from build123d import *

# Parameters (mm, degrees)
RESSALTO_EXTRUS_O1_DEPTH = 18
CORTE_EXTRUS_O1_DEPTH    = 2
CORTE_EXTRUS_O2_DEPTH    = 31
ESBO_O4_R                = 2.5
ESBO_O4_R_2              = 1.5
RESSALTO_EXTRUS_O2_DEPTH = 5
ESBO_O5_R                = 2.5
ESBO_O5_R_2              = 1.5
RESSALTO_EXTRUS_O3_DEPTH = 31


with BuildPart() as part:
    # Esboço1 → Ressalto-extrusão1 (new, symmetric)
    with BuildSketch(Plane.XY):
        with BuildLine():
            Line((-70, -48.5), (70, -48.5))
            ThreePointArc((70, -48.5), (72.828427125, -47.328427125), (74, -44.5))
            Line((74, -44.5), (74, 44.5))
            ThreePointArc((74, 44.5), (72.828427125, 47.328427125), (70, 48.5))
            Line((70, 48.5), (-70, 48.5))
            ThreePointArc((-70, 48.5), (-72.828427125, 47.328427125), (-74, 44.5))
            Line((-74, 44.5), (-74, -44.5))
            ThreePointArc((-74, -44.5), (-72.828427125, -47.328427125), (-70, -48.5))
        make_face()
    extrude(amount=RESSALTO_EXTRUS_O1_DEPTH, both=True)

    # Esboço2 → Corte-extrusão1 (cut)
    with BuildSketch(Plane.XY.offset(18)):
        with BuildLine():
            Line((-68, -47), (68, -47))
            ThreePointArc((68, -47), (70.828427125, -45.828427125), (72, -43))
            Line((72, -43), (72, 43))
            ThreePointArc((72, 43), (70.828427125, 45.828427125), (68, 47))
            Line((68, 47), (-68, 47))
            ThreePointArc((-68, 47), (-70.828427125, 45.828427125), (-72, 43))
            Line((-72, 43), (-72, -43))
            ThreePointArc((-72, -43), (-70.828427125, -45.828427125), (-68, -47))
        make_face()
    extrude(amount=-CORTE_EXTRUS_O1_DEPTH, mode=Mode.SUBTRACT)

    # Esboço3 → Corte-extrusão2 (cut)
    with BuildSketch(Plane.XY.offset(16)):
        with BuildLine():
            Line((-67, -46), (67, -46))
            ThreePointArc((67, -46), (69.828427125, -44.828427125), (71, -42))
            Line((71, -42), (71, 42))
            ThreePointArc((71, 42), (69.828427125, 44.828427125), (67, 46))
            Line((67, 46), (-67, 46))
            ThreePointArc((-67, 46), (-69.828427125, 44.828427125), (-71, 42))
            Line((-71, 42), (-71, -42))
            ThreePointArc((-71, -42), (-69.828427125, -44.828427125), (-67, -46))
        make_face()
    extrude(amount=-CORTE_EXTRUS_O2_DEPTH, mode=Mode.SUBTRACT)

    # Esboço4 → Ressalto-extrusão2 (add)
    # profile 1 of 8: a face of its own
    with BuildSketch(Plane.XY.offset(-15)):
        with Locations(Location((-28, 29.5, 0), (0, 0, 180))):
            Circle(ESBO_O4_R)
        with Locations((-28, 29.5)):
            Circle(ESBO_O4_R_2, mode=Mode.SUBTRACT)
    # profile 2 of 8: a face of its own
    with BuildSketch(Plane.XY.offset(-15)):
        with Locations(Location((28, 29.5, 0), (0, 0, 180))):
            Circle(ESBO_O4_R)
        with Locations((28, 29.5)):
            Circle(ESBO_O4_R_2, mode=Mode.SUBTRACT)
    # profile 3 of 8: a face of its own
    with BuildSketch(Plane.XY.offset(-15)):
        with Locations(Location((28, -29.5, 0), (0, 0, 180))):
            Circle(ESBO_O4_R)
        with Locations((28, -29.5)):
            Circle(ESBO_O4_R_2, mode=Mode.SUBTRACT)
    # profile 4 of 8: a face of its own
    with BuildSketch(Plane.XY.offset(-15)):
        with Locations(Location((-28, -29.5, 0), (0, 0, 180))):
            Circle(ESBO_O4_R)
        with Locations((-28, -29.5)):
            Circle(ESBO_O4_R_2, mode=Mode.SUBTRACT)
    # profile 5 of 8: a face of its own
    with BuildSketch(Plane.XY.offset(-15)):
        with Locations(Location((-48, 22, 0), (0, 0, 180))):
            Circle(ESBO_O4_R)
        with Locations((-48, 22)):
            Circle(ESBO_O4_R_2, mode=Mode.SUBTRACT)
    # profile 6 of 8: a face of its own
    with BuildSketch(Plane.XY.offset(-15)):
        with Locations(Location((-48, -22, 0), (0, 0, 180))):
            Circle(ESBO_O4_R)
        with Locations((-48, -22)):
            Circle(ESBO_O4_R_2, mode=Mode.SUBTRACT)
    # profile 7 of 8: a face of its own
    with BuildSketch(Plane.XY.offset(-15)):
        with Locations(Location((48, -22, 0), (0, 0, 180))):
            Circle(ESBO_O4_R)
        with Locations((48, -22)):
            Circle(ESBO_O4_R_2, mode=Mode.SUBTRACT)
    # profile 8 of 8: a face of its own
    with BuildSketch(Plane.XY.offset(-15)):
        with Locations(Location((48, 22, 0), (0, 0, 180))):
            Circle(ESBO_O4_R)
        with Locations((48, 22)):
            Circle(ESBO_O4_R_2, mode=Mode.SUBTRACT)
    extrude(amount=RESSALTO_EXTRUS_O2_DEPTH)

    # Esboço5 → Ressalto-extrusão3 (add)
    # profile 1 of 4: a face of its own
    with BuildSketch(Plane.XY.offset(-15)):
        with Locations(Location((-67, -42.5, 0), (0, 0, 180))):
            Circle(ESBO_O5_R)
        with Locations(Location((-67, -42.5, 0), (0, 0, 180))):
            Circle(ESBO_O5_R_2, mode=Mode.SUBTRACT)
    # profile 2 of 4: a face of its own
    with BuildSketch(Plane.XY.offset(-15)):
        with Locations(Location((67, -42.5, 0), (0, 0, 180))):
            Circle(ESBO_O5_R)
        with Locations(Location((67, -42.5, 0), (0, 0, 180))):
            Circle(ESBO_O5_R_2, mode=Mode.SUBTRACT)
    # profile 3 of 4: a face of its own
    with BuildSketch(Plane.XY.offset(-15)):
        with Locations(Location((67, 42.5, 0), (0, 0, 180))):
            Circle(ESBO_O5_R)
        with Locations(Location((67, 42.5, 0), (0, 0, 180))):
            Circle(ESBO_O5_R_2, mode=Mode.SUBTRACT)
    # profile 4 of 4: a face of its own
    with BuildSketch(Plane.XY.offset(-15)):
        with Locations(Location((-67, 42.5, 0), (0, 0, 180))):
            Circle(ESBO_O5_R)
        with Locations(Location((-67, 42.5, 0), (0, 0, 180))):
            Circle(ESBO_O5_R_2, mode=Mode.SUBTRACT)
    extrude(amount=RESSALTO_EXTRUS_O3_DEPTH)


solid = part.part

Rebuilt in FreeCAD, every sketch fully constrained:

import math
import FreeCAD as App
import Part
import Sketcher

V = App.Vector

doc = App.newDocument("Part")
body = doc.addObject("PartDesign::Body", "Body")

sketch1 = body.newObject("Sketcher::SketchObject", "Sketch")
sketch1.AttachmentSupport = (doc.getObject("XY_Plane"), [""])
sketch1.MapMode = "FlatFace"
sketch1.addGeometry(Part.LineSegment(V(-70, -48.5, 0), V(70, -48.5, 0)), False)
sketch1.addGeometry(Part.ArcOfCircle(Part.Circle(V(70, -44.5, 0), V(0, 0, 1), 4), math.radians(-90), math.radians(0)), False)
sketch1.addGeometry(Part.LineSegment(V(74, -44.5, 0), V(74, 44.5, 0)), False)
sketch1.addGeometry(Part.ArcOfCircle(Part.Circle(V(70, 44.5, 0), V(0, 0, 1), 4), math.radians(0), math.radians(90)), False)
sketch1.addGeometry(Part.LineSegment(V(70, 48.5, 0), V(-70, 48.5, 0)), False)
sketch1.addGeometry(Part.ArcOfCircle(Part.Circle(V(-70, 44.5, 0), V(0, 0, 1), 4), math.radians(90), math.radians(180)), False)
sketch1.addGeometry(Part.LineSegment(V(-74, 44.5, 0), V(-74, -44.5, 0)), False)
sketch1.addGeometry(Part.ArcOfCircle(Part.Circle(V(-70, -44.5, 0), V(0, 0, 1), 4), math.radians(180), math.radians(270)), False)
sketch1.addConstraint(Sketcher.Constraint("Tangent", 0, 2, 1, 1))
sketch1.addConstraint(Sketcher.Constraint("Tangent", 1, 2, 2, 1))
sketch1.addConstraint(Sketcher.Constraint("Tangent", 2, 2, 3, 1))
sketch1.addConstraint(Sketcher.Constraint("Tangent", 3, 2, 4, 1))
sketch1.addConstraint(Sketcher.Constraint("Tangent", 4, 2, 5, 1))
sketch1.addConstraint(Sketcher.Constraint("Tangent", 5, 2, 6, 1))
sketch1.addConstraint(Sketcher.Constraint("Tangent", 6, 2, 7, 1))
sketch1.addConstraint(Sketcher.Constraint("Tangent", 7, 2, 0, 1))
sketch1.addConstraint(Sketcher.Constraint("Horizontal", 0))
sketch1.addConstraint(Sketcher.Constraint("Vertical", 2))
sketch1.addConstraint(Sketcher.Constraint("Horizontal", 4))
sketch1.addConstraint(Sketcher.Constraint("Vertical", 6))
sketch1.addConstraint(Sketcher.Constraint("Equal", 1, 3))
sketch1.addConstraint(Sketcher.Constraint("Equal", 3, 5))
sketch1.addConstraint(Sketcher.Constraint("Equal", 5, 7))
sketch1.addConstraint(Sketcher.Constraint("Symmetric", 1, 3, 5, 3, -1, 1))
sketch1.addConstraint(Sketcher.Constraint("Radius", 1, 4.0))
sketch1.addConstraint(Sketcher.Constraint("DistanceX", 0, 1, 0, 2, 140.0))
sketch1.addConstraint(Sketcher.Constraint("DistanceY", 2, 1, 2, 2, 89.0))
pad1 = body.newObject("PartDesign::Pad", "Pad")
pad1.Profile = sketch1
pad1.Length = 36
pad1.Midplane = True

sketch2 = body.newObject("Sketcher::SketchObject", "Sketch001")
sketch2.AttachmentSupport = (doc.getObject("XY_Plane"), [""])
sketch2.MapMode = "FlatFace"
sketch2.AttachmentOffset = App.Placement(V(0, 0, 18), App.Rotation())
sketch2.addGeometry(Part.LineSegment(V(-68, -47, 0), V(68, -47, 0)), False)
sketch2.addGeometry(Part.ArcOfCircle(Part.Circle(V(68, -43, 0), V(0, 0, 1), 4), math.radians(-90), math.radians(0)), False)
sketch2.addGeometry(Part.LineSegment(V(72, -43, 0), V(72, 43, 0)), False)
sketch2.addGeometry(Part.ArcOfCircle(Part.Circle(V(68, 43, 0), V(0, 0, 1), 4), math.radians(0), math.radians(90)), False)
sketch2.addGeometry(Part.LineSegment(V(68, 47, 0), V(-68, 47, 0)), False)
sketch2.addGeometry(Part.ArcOfCircle(Part.Circle(V(-68, 43, 0), V(0, 0, 1), 4), math.radians(90), math.radians(180)), False)
sketch2.addGeometry(Part.LineSegment(V(-72, 43, 0), V(-72, -43, 0)), False)
sketch2.addGeometry(Part.ArcOfCircle(Part.Circle(V(-68, -43, 0), V(0, 0, 1), 4), math.radians(180), math.radians(270)), False)
sketch2.addConstraint(Sketcher.Constraint("Tangent", 0, 2, 1, 1))
sketch2.addConstraint(Sketcher.Constraint("Tangent", 1, 2, 2, 1))
sketch2.addConstraint(Sketcher.Constraint("Tangent", 2, 2, 3, 1))
sketch2.addConstraint(Sketcher.Constraint("Tangent", 3, 2, 4, 1))
sketch2.addConstraint(Sketcher.Constraint("Tangent", 4, 2, 5, 1))
sketch2.addConstraint(Sketcher.Constraint("Tangent", 5, 2, 6, 1))
sketch2.addConstraint(Sketcher.Constraint("Tangent", 6, 2, 7, 1))
sketch2.addConstraint(Sketcher.Constraint("Tangent", 7, 2, 0, 1))
sketch2.addConstraint(Sketcher.Constraint("Horizontal", 0))
sketch2.addConstraint(Sketcher.Constraint("Vertical", 2))
sketch2.addConstraint(Sketcher.Constraint("Horizontal", 4))
sketch2.addConstraint(Sketcher.Constraint("Vertical", 6))
sketch2.addConstraint(Sketcher.Constraint("Equal", 1, 3))
sketch2.addConstraint(Sketcher.Constraint("Equal", 3, 5))
sketch2.addConstraint(Sketcher.Constraint("Equal", 5, 7))
sketch2.addConstraint(Sketcher.Constraint("Symmetric", 1, 3, 5, 3, -1, 1))
sketch2.addConstraint(Sketcher.Constraint("Radius", 1, 4.0))
sketch2.addConstraint(Sketcher.Constraint("DistanceX", 0, 1, 0, 2, 136.0))
sketch2.addConstraint(Sketcher.Constraint("DistanceY", 2, 1, 2, 2, 86.0))
pocket1 = body.newObject("PartDesign::Pocket", "Pocket")
pocket1.Profile = sketch2
pocket1.Length = 2

sketch3 = body.newObject("Sketcher::SketchObject", "Sketch002")
sketch3.AttachmentSupport = (doc.getObject("XY_Plane"), [""])
sketch3.MapMode = "FlatFace"
sketch3.AttachmentOffset = App.Placement(V(0, 0, 16), App.Rotation())
sketch3.addGeometry(Part.LineSegment(V(-67, -46, 0), V(67, -46, 0)), False)
sketch3.addGeometry(Part.ArcOfCircle(Part.Circle(V(67, -42, 0), V(0, 0, 1), 4), math.radians(-90), math.radians(0)), False)
sketch3.addGeometry(Part.LineSegment(V(71, -42, 0), V(71, 42, 0)), False)
sketch3.addGeometry(Part.ArcOfCircle(Part.Circle(V(67, 42, 0), V(0, 0, 1), 4), math.radians(0), math.radians(90)), False)
sketch3.addGeometry(Part.LineSegment(V(67, 46, 0), V(-67, 46, 0)), False)
sketch3.addGeometry(Part.ArcOfCircle(Part.Circle(V(-67, 42, 0), V(0, 0, 1), 4), math.radians(90), math.radians(180)), False)
sketch3.addGeometry(Part.LineSegment(V(-71, 42, 0), V(-71, -42, 0)), False)
sketch3.addGeometry(Part.ArcOfCircle(Part.Circle(V(-67, -42, 0), V(0, 0, 1), 4), math.radians(180), math.radians(270)), False)
sketch3.addConstraint(Sketcher.Constraint("Tangent", 0, 2, 1, 1))
sketch3.addConstraint(Sketcher.Constraint("Tangent", 1, 2, 2, 1))
sketch3.addConstraint(Sketcher.Constraint("Tangent", 2, 2, 3, 1))
sketch3.addConstraint(Sketcher.Constraint("Tangent", 3, 2, 4, 1))
sketch3.addConstraint(Sketcher.Constraint("Tangent", 4, 2, 5, 1))
sketch3.addConstraint(Sketcher.Constraint("Tangent", 5, 2, 6, 1))
sketch3.addConstraint(Sketcher.Constraint("Tangent", 6, 2, 7, 1))
sketch3.addConstraint(Sketcher.Constraint("Tangent", 7, 2, 0, 1))
sketch3.addConstraint(Sketcher.Constraint("Horizontal", 0))
sketch3.addConstraint(Sketcher.Constraint("Vertical", 2))
sketch3.addConstraint(Sketcher.Constraint("Horizontal", 4))
sketch3.addConstraint(Sketcher.Constraint("Vertical", 6))
sketch3.addConstraint(Sketcher.Constraint("Equal", 1, 3))
sketch3.addConstraint(Sketcher.Constraint("Equal", 3, 5))
sketch3.addConstraint(Sketcher.Constraint("Equal", 5, 7))
sketch3.addConstraint(Sketcher.Constraint("Symmetric", 1, 3, 5, 3, -1, 1))
sketch3.addConstraint(Sketcher.Constraint("Radius", 1, 4.0))
sketch3.addConstraint(Sketcher.Constraint("DistanceX", 0, 1, 0, 2, 134.0))
sketch3.addConstraint(Sketcher.Constraint("DistanceY", 2, 1, 2, 2, 84.0))
pocket2 = body.newObject("PartDesign::Pocket", "Pocket001")
pocket2.Profile = sketch3
pocket2.Length = 31

sketch4 = body.newObject("Sketcher::SketchObject", "Sketch003")
sketch4.AttachmentSupport = (doc.getObject("XY_Plane"), [""])
sketch4.MapMode = "FlatFace"
sketch4.AttachmentOffset = App.Placement(V(0, 0, -15), App.Rotation())
sketch4.addGeometry(Part.Circle(V(-28, 29.5, 0), V(0, 0, 1), 2.5), False)
sketch4.addGeometry(Part.Circle(V(-28, 29.5, 0), V(0, 0, 1), 1.5), False)
sketch4.addGeometry(Part.Circle(V(28, 29.5, 0), V(0, 0, 1), 2.5), False)
sketch4.addGeometry(Part.Circle(V(28, 29.5, 0), V(0, 0, 1), 1.5), False)
sketch4.addGeometry(Part.Circle(V(28, -29.5, 0), V(0, 0, 1), 2.5), False)
sketch4.addGeometry(Part.Circle(V(28, -29.5, 0), V(0, 0, 1), 1.5), False)
sketch4.addGeometry(Part.Circle(V(-28, -29.5, 0), V(0, 0, 1), 2.5), False)
sketch4.addGeometry(Part.Circle(V(-28, -29.5, 0), V(0, 0, 1), 1.5), False)
sketch4.addGeometry(Part.Circle(V(-48, 22, 0), V(0, 0, 1), 2.5), False)
sketch4.addGeometry(Part.Circle(V(-48, 22, 0), V(0, 0, 1), 1.5), False)
sketch4.addGeometry(Part.Circle(V(-48, -22, 0), V(0, 0, 1), 2.5), False)
sketch4.addGeometry(Part.Circle(V(-48, -22, 0), V(0, 0, 1), 1.5), False)
sketch4.addGeometry(Part.Circle(V(48, -22, 0), V(0, 0, 1), 2.5), False)
sketch4.addGeometry(Part.Circle(V(48, -22, 0), V(0, 0, 1), 1.5), False)
sketch4.addGeometry(Part.Circle(V(48, 22, 0), V(0, 0, 1), 2.5), False)
sketch4.addGeometry(Part.Circle(V(48, 22, 0), V(0, 0, 1), 1.5), False)
sketch4.addConstraint(Sketcher.Constraint("Coincident", 1, 3, 0, 3))
sketch4.addConstraint(Sketcher.Constraint("Coincident", 3, 3, 2, 3))
sketch4.addConstraint(Sketcher.Constraint("Coincident", 5, 3, 4, 3))
sketch4.addConstraint(Sketcher.Constraint("Coincident", 7, 3, 6, 3))
sketch4.addConstraint(Sketcher.Constraint("Coincident", 9, 3, 8, 3))
sketch4.addConstraint(Sketcher.Constraint("Coincident", 11, 3, 10, 3))
sketch4.addConstraint(Sketcher.Constraint("Coincident", 13, 3, 12, 3))
sketch4.addConstraint(Sketcher.Constraint("Coincident", 15, 3, 14, 3))
sketch4.addConstraint(Sketcher.Constraint("Equal", 0, 2))
sketch4.addConstraint(Sketcher.Constraint("Equal", 1, 3))
sketch4.addConstraint(Sketcher.Constraint("Equal", 2, 4))
sketch4.addConstraint(Sketcher.Constraint("Equal", 3, 5))
sketch4.addConstraint(Sketcher.Constraint("Equal", 4, 6))
sketch4.addConstraint(Sketcher.Constraint("Equal", 5, 7))
sketch4.addConstraint(Sketcher.Constraint("Equal", 6, 8))
sketch4.addConstraint(Sketcher.Constraint("Equal", 7, 9))
sketch4.addConstraint(Sketcher.Constraint("Equal", 8, 10))
sketch4.addConstraint(Sketcher.Constraint("Equal", 9, 11))
sketch4.addConstraint(Sketcher.Constraint("Equal", 10, 12))
sketch4.addConstraint(Sketcher.Constraint("Equal", 11, 13))
sketch4.addConstraint(Sketcher.Constraint("Equal", 12, 14))
sketch4.addConstraint(Sketcher.Constraint("Equal", 13, 15))
sketch4.addConstraint(Sketcher.Constraint("Symmetric", 0, 3, 4, 3, -1, 1))
sketch4.addConstraint(Sketcher.Constraint("Symmetric", 2, 3, 6, 3, -1, 1))
sketch4.addConstraint(Sketcher.Constraint("Symmetric", 8, 3, 12, 3, -1, 1))
sketch4.addConstraint(Sketcher.Constraint("Symmetric", 10, 3, 14, 3, -1, 1))
sketch4.addConstraint(Sketcher.Constraint("Symmetric", 0, 3, 2, 3, -2))
sketch4.addConstraint(Sketcher.Constraint("Symmetric", 10, 3, 12, 3, -2))
sketch4.addConstraint(Sketcher.Constraint("Diameter", 0, 5.0))
sketch4.addConstraint(Sketcher.Constraint("Diameter", 1, 3.0))
sketch4.addConstraint(Sketcher.Constraint("DistanceX", 0, 3, -1, 1, 28.0))
sketch4.addConstraint(Sketcher.Constraint("DistanceX", 8, 3, -1, 1, 48.0))
sketch4.addConstraint(Sketcher.Constraint("DistanceY", -1, 1, 8, 3, 22.0))
sketch4.addConstraint(Sketcher.Constraint("DistanceY", 4, 3, 2, 3, 59.0))
pad2 = body.newObject("PartDesign::Pad", "Pad001")
pad2.Profile = sketch4
pad2.Length = 5

sketch5 = body.newObject("Sketcher::SketchObject", "Sketch004")
sketch5.AttachmentSupport = (doc.getObject("XY_Plane"), [""])
sketch5.MapMode = "FlatFace"
sketch5.AttachmentOffset = App.Placement(V(0, 0, -15), App.Rotation())
sketch5.addGeometry(Part.Circle(V(-67, -42.5, 0), V(0, 0, 1), 2.5), False)
sketch5.addGeometry(Part.Circle(V(-67, -42.5, 0), V(0, 0, 1), 1.5), False)
sketch5.addGeometry(Part.Circle(V(67, -42.5, 0), V(0, 0, 1), 2.5), False)
sketch5.addGeometry(Part.Circle(V(67, -42.5, 0), V(0, 0, 1), 1.5), False)
sketch5.addGeometry(Part.Circle(V(67, 42.5, 0), V(0, 0, 1), 2.5), False)
sketch5.addGeometry(Part.Circle(V(67, 42.5, 0), V(0, 0, 1), 1.5), False)
sketch5.addGeometry(Part.Circle(V(-67, 42.5, 0), V(0, 0, 1), 2.5), False)
sketch5.addGeometry(Part.Circle(V(-67, 42.5, 0), V(0, 0, 1), 1.5), False)
sketch5.addConstraint(Sketcher.Constraint("Coincident", 1, 3, 0, 3))
sketch5.addConstraint(Sketcher.Constraint("Coincident", 3, 3, 2, 3))
sketch5.addConstraint(Sketcher.Constraint("Coincident", 5, 3, 4, 3))
sketch5.addConstraint(Sketcher.Constraint("Coincident", 7, 3, 6, 3))
sketch5.addConstraint(Sketcher.Constraint("Equal", 0, 2))
sketch5.addConstraint(Sketcher.Constraint("Equal", 1, 3))
sketch5.addConstraint(Sketcher.Constraint("Equal", 2, 4))
sketch5.addConstraint(Sketcher.Constraint("Equal", 3, 5))
sketch5.addConstraint(Sketcher.Constraint("Equal", 4, 6))
sketch5.addConstraint(Sketcher.Constraint("Equal", 5, 7))
sketch5.addConstraint(Sketcher.Constraint("Symmetric", 0, 3, 4, 3, -1, 1))
sketch5.addConstraint(Sketcher.Constraint("Symmetric", 2, 3, 6, 3, -1, 1))
sketch5.addConstraint(Sketcher.Constraint("Symmetric", 0, 3, 2, 3, -2))
sketch5.addConstraint(Sketcher.Constraint("Diameter", 0, 5.0))
sketch5.addConstraint(Sketcher.Constraint("Diameter", 1, 3.0))
sketch5.addConstraint(Sketcher.Constraint("DistanceX", 0, 3, -1, 1, 67.0))
sketch5.addConstraint(Sketcher.Constraint("DistanceY", 2, 3, 4, 3, 85.0))
pad3 = body.newObject("PartDesign::Pad", "Pad002")
pad3.Profile = sketch5
pad3.Length = 31

doc.recompute()
